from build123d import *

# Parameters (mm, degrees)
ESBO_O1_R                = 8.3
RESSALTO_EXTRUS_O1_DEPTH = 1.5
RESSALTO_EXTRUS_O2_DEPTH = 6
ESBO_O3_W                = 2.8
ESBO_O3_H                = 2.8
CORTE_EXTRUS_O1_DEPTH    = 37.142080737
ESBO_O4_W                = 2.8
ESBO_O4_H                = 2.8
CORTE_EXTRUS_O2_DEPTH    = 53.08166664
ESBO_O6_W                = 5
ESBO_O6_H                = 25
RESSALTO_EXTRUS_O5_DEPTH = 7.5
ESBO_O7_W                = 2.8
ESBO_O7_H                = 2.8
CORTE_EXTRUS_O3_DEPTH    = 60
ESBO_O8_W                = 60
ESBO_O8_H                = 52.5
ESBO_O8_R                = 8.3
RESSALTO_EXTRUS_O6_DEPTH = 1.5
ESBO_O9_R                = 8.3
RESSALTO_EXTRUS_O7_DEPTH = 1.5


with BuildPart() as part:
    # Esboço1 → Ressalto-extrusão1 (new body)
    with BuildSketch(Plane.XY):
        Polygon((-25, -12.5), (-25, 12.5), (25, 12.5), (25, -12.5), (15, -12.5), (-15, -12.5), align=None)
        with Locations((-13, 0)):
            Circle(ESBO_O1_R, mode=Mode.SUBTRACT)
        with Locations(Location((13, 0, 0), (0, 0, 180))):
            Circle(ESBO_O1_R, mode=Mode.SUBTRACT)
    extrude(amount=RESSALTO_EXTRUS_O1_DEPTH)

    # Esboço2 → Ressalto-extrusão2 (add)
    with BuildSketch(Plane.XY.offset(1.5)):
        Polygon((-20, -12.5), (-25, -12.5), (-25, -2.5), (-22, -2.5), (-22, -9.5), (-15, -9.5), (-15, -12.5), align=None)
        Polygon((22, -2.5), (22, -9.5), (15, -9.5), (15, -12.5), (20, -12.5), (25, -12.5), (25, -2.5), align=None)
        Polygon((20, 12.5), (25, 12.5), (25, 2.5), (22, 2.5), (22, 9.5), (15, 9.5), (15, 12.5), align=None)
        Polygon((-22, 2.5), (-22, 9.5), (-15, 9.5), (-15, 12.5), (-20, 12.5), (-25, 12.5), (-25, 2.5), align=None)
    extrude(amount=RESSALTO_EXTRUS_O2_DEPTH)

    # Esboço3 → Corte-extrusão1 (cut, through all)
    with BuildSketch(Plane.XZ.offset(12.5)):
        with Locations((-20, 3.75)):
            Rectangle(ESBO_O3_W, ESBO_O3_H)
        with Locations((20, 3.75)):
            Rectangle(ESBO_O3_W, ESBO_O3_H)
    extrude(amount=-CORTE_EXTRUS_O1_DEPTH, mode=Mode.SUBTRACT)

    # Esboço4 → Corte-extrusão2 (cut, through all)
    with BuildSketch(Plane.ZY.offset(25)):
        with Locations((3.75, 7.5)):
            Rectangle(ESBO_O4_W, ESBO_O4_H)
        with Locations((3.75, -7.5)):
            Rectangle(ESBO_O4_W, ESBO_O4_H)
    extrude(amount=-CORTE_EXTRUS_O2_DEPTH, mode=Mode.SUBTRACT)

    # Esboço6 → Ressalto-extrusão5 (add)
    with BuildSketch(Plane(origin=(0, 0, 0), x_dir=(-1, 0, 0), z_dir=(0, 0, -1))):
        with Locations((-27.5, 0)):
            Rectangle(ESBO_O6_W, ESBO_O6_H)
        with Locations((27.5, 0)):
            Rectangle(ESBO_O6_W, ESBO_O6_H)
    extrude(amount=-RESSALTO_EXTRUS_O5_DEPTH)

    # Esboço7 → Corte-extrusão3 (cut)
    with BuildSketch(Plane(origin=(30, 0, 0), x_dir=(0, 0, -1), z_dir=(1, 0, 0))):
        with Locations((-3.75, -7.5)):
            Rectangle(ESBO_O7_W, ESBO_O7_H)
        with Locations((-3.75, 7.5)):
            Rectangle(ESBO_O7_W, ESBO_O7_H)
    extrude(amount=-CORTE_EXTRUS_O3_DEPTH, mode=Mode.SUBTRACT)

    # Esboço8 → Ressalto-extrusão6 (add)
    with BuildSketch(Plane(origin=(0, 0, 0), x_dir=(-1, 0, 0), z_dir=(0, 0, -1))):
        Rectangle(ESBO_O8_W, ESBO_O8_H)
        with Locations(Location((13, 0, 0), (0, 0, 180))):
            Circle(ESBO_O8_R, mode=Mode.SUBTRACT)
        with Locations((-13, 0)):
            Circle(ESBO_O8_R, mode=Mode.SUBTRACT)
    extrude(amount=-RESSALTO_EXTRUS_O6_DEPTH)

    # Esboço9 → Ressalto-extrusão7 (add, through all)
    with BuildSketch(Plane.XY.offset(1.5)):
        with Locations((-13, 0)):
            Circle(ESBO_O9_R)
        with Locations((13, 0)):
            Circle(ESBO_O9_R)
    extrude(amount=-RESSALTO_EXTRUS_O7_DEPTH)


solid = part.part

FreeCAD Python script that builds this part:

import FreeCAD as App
import Part
import Sketcher


def add_polygon(sketch, points):
    """Adds a closed chain of lines whose ends are joined by coincident constraints."""
    first, n = sketch.GeometryCount, len(points)
    for a, b in zip(points, points[1:] + points[:1]):
        sketch.addGeometry(Part.LineSegment(App.Vector(*a, 0), App.Vector(*b, 0)), False)
    for i in range(n):
        sketch.addConstraint(Sketcher.Constraint("Coincident", first + i, 2, first + (i + 1) % n, 1))

doc = App.newDocument("Part")
body = doc.addObject("PartDesign::Body", "Body")

# Sketch on XY plane
sketch1 = body.newObject("Sketcher::SketchObject", "Sketch")
sketch1.AttachmentSupport = (doc.getObject("XY_Plane"), [""])
sketch1.MapMode = "FlatFace"
add_polygon(sketch1, [(-25, 12), (-25, -12), (25, -12), (25, 12)])  # lines 0-3
sketch1.addGeometry(Part.Circle(App.Vector(13, 0, 0), App.Vector(0, 0, 1), 8), False)  # 4
sketch1.addGeometry(Part.Circle(App.Vector(-13, 0, 0), App.Vector(0, 0, 1), 8), False)  # 5
sketch1.addConstraint([
    Sketcher.Constraint("Vertical", 0),
    Sketcher.Constraint("Horizontal", 1),
    Sketcher.Constraint("Vertical", 2),
    Sketcher.Constraint("Horizontal", 3),
    Sketcher.Constraint("Equal", 4, 5),
    Sketcher.Constraint("Symmetric", 4, 3, 5, 3, -1, 1),
    Sketcher.Constraint("Symmetric", 0, 2, 2, 2, -1, 1),
    Sketcher.Constraint("PointOnObject", 4, 3, -1),
    Sketcher.Constraint("Diameter", 4, 16.6),
    Sketcher.Constraint("DistanceX", 1, 1, 1, 2, 50.0),
    Sketcher.Constraint("DistanceY", 0, 2, 0, 1, 25.0),
    Sketcher.Constraint("DistanceX", -1, 1, 4, 3, 13.0),
])
pad1 = body.newObject("PartDesign::Pad", "Pad")
pad1.Profile = sketch1
pad1.Length = 1.5

# Sketch on XY plane
sketch2 = body.newObject("Sketcher::SketchObject", "Sketch001")
sketch2.AttachmentSupport = (doc.getObject("XY_Plane"), [""])
sketch2.MapMode = "FlatFace"
sketch2.AttachmentOffset = App.Placement(App.Vector(0, 0, 1.5), App.Rotation())
add_polygon(sketch2, [(-25, -12.5), (-15, -12.5), (-15, -9.5), (-22, -9.5), (-22, -2.5), (-25, -2.5)])  # lines 0-5
add_polygon(sketch2, [(22, -2.5), (22, -9.5), (15, -9.5), (15, -12.5), (25, -12.5), (25, -2.5)])  # lines 6-11
add_polygon(sketch2, [(25, 12.5), (15, 12.5), (15, 9.5), (22, 9.5), (22, 2.5), (25, 2.5)])  # lines 12-17
add_polygon(sketch2, [(-22, 2.5), (-22, 9.5), (-15, 9.5), (-15, 12.5), (-25, 12.5), (-25, 2.5)])  # lines 18-23
sketch2.addConstraint([
    Sketcher.Constraint("Horizontal", 0),
    Sketcher.Constraint("Vertical", 1),
    Sketcher.Constraint("Horizontal", 2),
    Sketcher.Constraint("Vertical", 3),
    Sketcher.Constraint("Horizontal", 4),
    Sketcher.Constraint("Vertical", 5),
    Sketcher.Constraint("Vertical", 6),
    Sketcher.Constraint("Horizontal", 7),
    Sketcher.Constraint("Vertical", 8),
    Sketcher.Constraint("Horizontal", 9),
    Sketcher.Constraint("Vertical", 10),
    Sketcher.Constraint("Horizontal", 11),
    Sketcher.Constraint("Horizontal", 12),
    Sketcher.Constraint("Vertical", 13),
    Sketcher.Constraint("Horizontal", 14),
    Sketcher.Constraint("Vertical", 15),
    Sketcher.Constraint("Horizontal", 16),
    Sketcher.Constraint("Vertical", 17),
    Sketcher.Constraint("Vertical", 18),
    Sketcher.Constraint("Horizontal", 19),
    Sketcher.Constraint("Vertical", 20),
    Sketcher.Constraint("Horizontal", 21),
    Sketcher.Constraint("Vertical", 22),
    Sketcher.Constraint("Horizontal", 23),
    Sketcher.Constraint("Symmetric", 0, 2, 12, 2, -1, 1),
    Sketcher.Constraint("Symmetric", 2, 2, 14, 2, -1, 1),
    Sketcher.Constraint("Symmetric", 4, 2, 16, 2, -1, 1),
    Sketcher.Constraint("Symmetric", 6, 2, 18, 2, -1, 1),
    Sketcher.Constraint("Symmetric", 8, 2, 20, 2, -1, 1),
    Sketcher.Constraint("Symmetric", 10, 2, 22, 2, -1, 1),
    Sketcher.Constraint("Symmetric", 2, 2, 6, 2, -2),
    Sketcher.Constraint("Symmetric", 0, 2, 8, 2, -2),
    Sketcher.Constraint("Symmetric", 4, 2, 10, 2, -2),
    Sketcher.Constraint("Equal", 23, 1),
    Sketcher.Constraint("Equal", 19, 3),
    Sketcher.Constraint("DistanceX", 0, 1, 0, 2, 10.0),
    Sketcher.Constraint("DistanceX", 2, 2, 2, 1, 7.0),
    Sketcher.Constraint("DistanceX", 0, 2, -1, 1, 15.0),
    Sketcher.Constraint("DistanceY", 11, 2, 12, 2, 15.0),
])
pad2 = body.newObject("PartDesign::Pad", "Pad001")
pad2.Profile = sketch2
pad2.Length = 6

# Sketch on XZ plane
sketch3 = body.newObject("Sketcher::SketchObject", "Sketch002")
sketch3.AttachmentSupport = (doc.getObject("XZ_Plane"), [""])
sketch3.MapMode = "FlatFace"
sketch3.AttachmentOffset = App.Placement(App.Vector(0, 0, 12.5), App.Rotation())
add_polygon(sketch3, [(-21.4, 5.2), (-21.4, 2.4), (-18.6, 2.4), (-18.6, 5.2)])  # lines 0-3
add_polygon(sketch3, [(18.6, 5.2), (18.6, 2.4), (21.4, 2.4), (21.4, 5.2)])  # lines 4-7
sketch3.addConstraint([
    Sketcher.Constraint("Vertical", 0),
    Sketcher.Constraint("Horizontal", 1),
    Sketcher.Constraint("Vertical", 2),
    Sketcher.Constraint("Horizontal", 3),
    Sketcher.Constraint("Vertical", 4),
    Sketcher.Constraint("Horizontal", 5),
    Sketcher.Constraint("Vertical", 6),
    Sketcher.Constraint("Horizontal", 7),
    Sketcher.Constraint("Symmetric", 1, 2, 4, 2, -2),
    Sketcher.Constraint("Symmetric", 3, 2, 6, 2, -2),
    Sketcher.Constraint("Equal", 7, 0),
    Sketcher.Constraint("DistanceX", 1, 1, 1, 2, 2.8),
    Sketcher.Constraint("DistanceX", 0, 2, 4, 2, 40.0),
    Sketcher.Constraint("DistanceY", -1, 1, 0, 2, 2.35),
])
pocket1 = body.newObject("PartDesign::Pocket", "Pocket")
pocket1.Profile = sketch3
pocket1.Type = "ThroughAll"

# Sketch on YZ plane
sketch4 = body.newObject("Sketcher::SketchObject", "Sketch003")
sketch4.AttachmentSupport = (doc.getObject("YZ_Plane"), [""])
sketch4.MapMode = "FlatFace"
sketch4.AttachmentOffset = App.Placement(App.Vector(0, 0, -25), App.Rotation())
add_polygon(sketch4, [(8.9, 2.4), (6.1, 2.4), (6.1, 5.2), (8.9, 5.2)])  # lines 0-3
add_polygon(sketch4, [(-6.1, 2.4), (-8.9, 2.4), (-8.9, 5.2), (-6.1, 5.2)])  # lines 4-7
sketch4.addConstraint([
    Sketcher.Constraint("Horizontal", 0),
    Sketcher.Constraint("Vertical", 1),
    Sketcher.Constraint("Horizontal", 2),
    Sketcher.Constraint("Vertical", 3),
    Sketcher.Constraint("Horizontal", 4),
    Sketcher.Constraint("Vertical", 5),
    Sketcher.Constraint("Horizontal", 6),
    Sketcher.Constraint("Vertical", 7),
    Sketcher.Constraint("Symmetric", 3, 2, 4, 2, -2),
    Sketcher.Constraint("Symmetric", 1, 2, 6, 2, -2),
    Sketcher.Constraint("Equal", 6, 1),
    Sketcher.Constraint("DistanceX", 0, 2, 0, 1, 2.8),
    Sketcher.Constraint("DistanceX", 4, 2, 0, 2, 15.0),
    Sketcher.Constraint("DistanceY", -1, 1, 0, 2, 2.35),
])
pocket2 = body.newObject("PartDesign::Pocket", "Pocket001")
pocket2.Profile = sketch4
pocket2.Type = "ThroughAll"
pocket2.Reversed = True

# Sketch on XY plane
sketch5 = body.newObject("Sketcher::SketchObject", "Sketch004")
sketch5.AttachmentSupport = (doc.getObject("XY_Plane"), [""])
sketch5.MapMode = "FlatFace"
add_polygon(sketch5, [(30, 12), (30, -12), (25, -12), (25, 12)])  # lines 0-3
add_polygon(sketch5, [(-25, 12), (-25, -12), (-30, -12), (-30, 12)])  # lines 4-7
sketch5.addConstraint([
    Sketcher.Constraint("Vertical", 0),
    Sketcher.Constraint("Horizontal", 1),
    Sketcher.Constraint("Vertical", 2),
    Sketcher.Constraint("Horizontal", 3),
    Sketcher.Constraint("Vertical", 4),
    Sketcher.Constraint("Horizontal", 5),
    Sketcher.Constraint("Vertical", 6),
    Sketcher.Constraint("Horizontal", 7),
    Sketcher.Constraint("Symmetric", 2, 2, 4, 2, -1, 1),
    Sketcher.Constraint("Symmetric", 0, 2, 6, 2, -1, 1),
    Sketcher.Constraint("Horizontal", 1, 2, 4, 2),
    Sketcher.Constraint("DistanceX", 1, 2, 1, 1, 5.0),
    Sketcher.Constraint("DistanceY", 0, 2, 0, 1, 25.0),
    Sketcher.Constraint("DistanceX", -1, 1, 0, 2, 30.0),
])
pad3 = body.newObject("PartDesign::Pad", "Pad002")
pad3.Profile = sketch5
pad3.Length = 7.5

# Sketch on YZ plane
sketch6 = body.newObject("Sketcher::SketchObject", "Sketch005")
sketch6.AttachmentSupport = (doc.getObject("YZ_Plane"), [""])
sketch6.MapMode = "FlatFace"
sketch6.AttachmentOffset = App.Placement(App.Vector(0, 0, 30), App.Rotation())
add_polygon(sketch6, [(-6.1, 5.2), (-8.9, 5.2), (-8.9, 2.4), (-6.1, 2.4)])  # lines 0-3
add_polygon(sketch6, [(8.9, 5.2), (6.1, 5.2), (6.1, 2.4), (8.9, 2.4)])  # lines 4-7
sketch6.addConstraint([
    Sketcher.Constraint("Horizontal", 0),
    Sketcher.Constraint("Vertical", 1),
    Sketcher.Constraint("Horizontal", 2),
    Sketcher.Constraint("Vertical", 3),
    Sketcher.Constraint("Horizontal", 4),
    Sketcher.Constraint("Vertical", 5),
    Sketcher.Constraint("Horizontal", 6),
    Sketcher.Constraint("Vertical", 7),
    Sketcher.Constraint("Symmetric", 3, 2, 4, 2, -2),
    Sketcher.Constraint("Symmetric", 1, 2, 6, 2, -2),
    Sketcher.Constraint("Equal", 6, 1),
    Sketcher.Constraint("DistanceX", 0, 2, 0, 1, 2.8),
    Sketcher.Constraint("DistanceX", 0, 2, 4, 2, 15.0),
    Sketcher.Constraint("DistanceY", -1, 1, 0, 2, 5.15),
])
pocket3 = body.newObject("PartDesign::Pocket", "Pocket002")
pocket3.Profile = sketch6
pocket3.Length = 60

# Sketch on XY plane
sketch7 = body.newObject("Sketcher::SketchObject", "Sketch006")
sketch7.AttachmentSupport = (doc.getObject("XY_Plane"), [""])
sketch7.MapMode = "FlatFace"
add_polygon(sketch7, [(30, 26), (30, -26), (-30, -26), (-30, 26)])  # lines 0-3
sketch7.addGeometry(Part.Circle(App.Vector(13, 0, 0), App.Vector(0, 0, 1), 8), False)  # 4
sketch7.addGeometry(Part.Circle(App.Vector(-13, 0, 0), App.Vector(0, 0, 1), 8), False)  # 5
sketch7.addConstraint([
    Sketcher.Constraint("Vertical", 0),
    Sketcher.Constraint("Horizontal", 1),
    Sketcher.Constraint("Vertical", 2),
    Sketcher.Constraint("Horizontal", 3),
    Sketcher.Constraint("Equal", 4, 5),
    Sketcher.Constraint("Symmetric", 4, 3, 5, 3, -1, 1),
    Sketcher.Constraint("Symmetric", 0, 2, 2, 2, -1, 1),
    Sketcher.Constraint("PointOnObject", 4, 3, -1),
    Sketcher.Constraint("Diameter", 4, 16.6),
    Sketcher.Constraint("DistanceX", 1, 2, 1, 1, 60.0),
    Sketcher.Constraint("DistanceY", 0, 2, 0, 1, 52.5),
    Sketcher.Constraint("DistanceX", -1, 1, 4, 3, 13.0),
])
pad4 = body.newObject("PartDesign::Pad", "Pad003")
pad4.Profile = sketch7
pad4.Length = 1.5

# Sketch on XY plane
sketch8 = body.newObject("Sketcher::SketchObject", "Sketch007")
sketch8.AttachmentSupport = (doc.getObject("XY_Plane"), [""])
sketch8.MapMode = "FlatFace"
sketch8.AttachmentOffset = App.Placement(App.Vector(0, 0, 1.5), App.Rotation())
sketch8.addGeometry([
    Part.Circle(App.Vector(-13, 0, 0), App.Vector(0, 0, 1), 8),
    Part.Circle(App.Vector(13, 0, 0), App.Vector(0, 0, 1), 8),
], False)
sketch8.addConstraint([
    Sketcher.Constraint("Equal", 0, 1),
    Sketcher.Constraint("Symmetric", 0, 3, 1, 3, -1, 1),
    Sketcher.Constraint("PointOnObject", 0, 3, -1),
    Sketcher.Constraint("Diameter", 0, 16.6),
    Sketcher.Constraint("DistanceX", 0, 3, -1, 1, 13.0),
])
pad5 = body.newObject("PartDesign::Pad", "Pad004")
pad5.Profile = sketch8
pad5.Type = "UpToLast"
pad5.Reversed = True

doc.recompute()
